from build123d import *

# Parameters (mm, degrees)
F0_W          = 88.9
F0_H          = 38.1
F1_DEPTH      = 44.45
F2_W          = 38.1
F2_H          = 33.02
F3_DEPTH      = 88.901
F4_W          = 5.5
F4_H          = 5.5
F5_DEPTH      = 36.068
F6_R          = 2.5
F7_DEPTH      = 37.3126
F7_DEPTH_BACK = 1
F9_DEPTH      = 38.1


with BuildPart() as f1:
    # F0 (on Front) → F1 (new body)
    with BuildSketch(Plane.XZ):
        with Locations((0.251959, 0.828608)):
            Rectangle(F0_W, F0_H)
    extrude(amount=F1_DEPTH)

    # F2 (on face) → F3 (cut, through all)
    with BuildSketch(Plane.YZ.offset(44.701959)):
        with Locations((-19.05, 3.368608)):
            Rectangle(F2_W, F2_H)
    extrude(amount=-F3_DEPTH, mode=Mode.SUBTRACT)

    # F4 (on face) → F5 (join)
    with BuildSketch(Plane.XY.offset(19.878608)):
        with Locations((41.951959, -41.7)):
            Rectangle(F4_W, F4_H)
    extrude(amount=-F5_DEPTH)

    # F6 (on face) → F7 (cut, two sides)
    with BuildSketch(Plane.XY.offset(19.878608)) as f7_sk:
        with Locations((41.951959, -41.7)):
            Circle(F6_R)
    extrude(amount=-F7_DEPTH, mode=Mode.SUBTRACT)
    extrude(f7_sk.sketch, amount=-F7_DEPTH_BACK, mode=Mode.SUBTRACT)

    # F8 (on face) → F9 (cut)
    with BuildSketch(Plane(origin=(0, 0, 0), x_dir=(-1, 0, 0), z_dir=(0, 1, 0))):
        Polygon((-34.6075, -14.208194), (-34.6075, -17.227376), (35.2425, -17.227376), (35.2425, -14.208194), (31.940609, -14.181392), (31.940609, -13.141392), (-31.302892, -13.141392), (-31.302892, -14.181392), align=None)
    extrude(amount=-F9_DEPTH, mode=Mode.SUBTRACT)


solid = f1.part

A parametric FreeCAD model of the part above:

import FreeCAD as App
import Part
import Sketcher
Q = App.Units.Quantity


def add_polygon(sketch, points):
    """Adds a closed chain of lines whose ends are joined by coincident constraints."""
    first, n = sketch.GeometryCount, len(points)
    for a, b in zip(points, points[1:] + points[:1]):
        sketch.addGeometry(Part.LineSegment(App.Vector(*a, 0), App.Vector(*b, 0)), False)
    for i in range(n):
        sketch.addConstraint(Sketcher.Constraint("Coincident", first + i, 2, first + (i + 1) % n, 1))

doc = App.newDocument("Part")
body = doc.addObject("PartDesign::Body", "Body")

sketch1 = doc.addObject("Sketcher::SketchObject", "Sketch")
body.addObject(sketch1)
sketch1.AttachmentSupport = (doc.XZ_Plane, [""])
sketch1.MapMode = "FlatFace"
add_polygon(sketch1, [(-44.198041, 19.878608), (-44.198041, -18.221392), (44.701959, -18.221392), (44.701959, 19.878608)])
sketch1.addConstraint(Sketcher.Constraint("Vertical", 0))
sketch1.addConstraint(Sketcher.Constraint("Horizontal", 1))
sketch1.addConstraint(Sketcher.Constraint("Vertical", 2))
sketch1.addConstraint(Sketcher.Constraint("Horizontal", 3))
sketch1.addConstraint(Sketcher.Constraint("DistanceX", 1, 1, 1, 2, Q("3.5 in")))
sketch1.addConstraint(Sketcher.Constraint("DistanceY", 0, 2, 0, 1, Q("1.5 in")))
sketch1.addConstraint(Sketcher.Constraint("DistanceX", 0, 2, -1, 1, 44.198041))
sketch1.addConstraint(Sketcher.Constraint("DistanceY", -1, 1, 2, 2, 19.878608))
pad1 = doc.addObject("PartDesign::Pad", "Pad")
body.addObject(pad1)
pad1.Profile = sketch1
pad1.Length = Q("1.75 in")

sketch2 = doc.addObject("Sketcher::SketchObject", "Sketch001")
body.addObject(sketch2)
sketch2.AttachmentSupport = (doc.YZ_Plane, [""])
sketch2.MapMode = "FlatFace"
sketch2.AttachmentOffset = App.Placement(App.Vector(0, 0, 44.701959), App.Rotation())
add_polygon(sketch2, [(-38.1, 19.878608), (-38.1, -13.141392), (0, -13.141392), (0, 19.878608)])
sketch2.addConstraint(Sketcher.Constraint("Vertical", 0))
sketch2.addConstraint(Sketcher.Constraint("Horizontal", 1))
sketch2.addConstraint(Sketcher.Constraint("Vertical", 2))
sketch2.addConstraint(Sketcher.Constraint("Horizontal", 3))
sketch2.addConstraint(Sketcher.Constraint("PointOnObject", 1, 2, -2))
sketch2.addConstraint(Sketcher.Constraint("DistanceX", 1, 1, 1, 2, Q("1.5 in")))
sketch2.addConstraint(Sketcher.Constraint("DistanceY", 0, 2, 0, 1, Q("1.3 in")))
sketch2.addConstraint(Sketcher.Constraint("DistanceY", -1, 1, 2, 2, 19.878608))
pocket1 = doc.addObject("PartDesign::Pocket", "Pocket")
body.addObject(pocket1)
pocket1.Profile = sketch2
pocket1.Type = "ThroughAll"

sketch3 = doc.addObject("Sketcher::SketchObject", "Sketch002")
body.addObject(sketch3)
sketch3.AttachmentSupport = (doc.XY_Plane, [""])
sketch3.MapMode = "FlatFace"
sketch3.AttachmentOffset = App.Placement(App.Vector(0, 0, 19.878608), App.Rotation())
add_polygon(sketch3, [(39.201959, -38.95), (39.201959, -44.45), (44.701959, -44.45), (44.701959, -38.95)])
sketch3.addConstraint(Sketcher.Constraint("Vertical", 0))
sketch3.addConstraint(Sketcher.Constraint("Horizontal", 1))
sketch3.addConstraint(Sketcher.Constraint("Vertical", 2))
sketch3.addConstraint(Sketcher.Constraint("Horizontal", 3))
sketch3.addConstraint(Sketcher.Constraint("Equal", 3, 0))
sketch3.addConstraint(Sketcher.Constraint("DistanceY", 0, 2, -1, 1, Q("1.75 in")))
sketch3.addConstraint(Sketcher.Constraint("DistanceX", 1, 1, 1, 2, 5.5))
sketch3.addConstraint(Sketcher.Constraint("DistanceX", -1, 1, 0, 2, 39.201959))
pad2 = doc.addObject("PartDesign::Pad", "Pad001")
body.addObject(pad2)
pad2.Profile = sketch3
pad2.Length = Q("1.42 in")
pad2.Reversed = True

sketch4 = doc.addObject("Sketcher::SketchObject", "Sketch003")
body.addObject(sketch4)
sketch4.AttachmentSupport = (doc.XY_Plane, [""])
sketch4.MapMode = "FlatFace"
sketch4.AttachmentOffset = App.Placement(App.Vector(0, 0, 19.878608), App.Rotation())
sketch4.addGeometry(Part.Circle(App.Vector(41.951959, -41.7, 0), App.Vector(0, 0, 1), 2.5), False)
sketch4.addConstraint(Sketcher.Constraint("Diameter", 0, 5.0))
sketch4.addConstraint(Sketcher.Constraint("DistanceY", 0, 3, -1, 1, 41.7))
sketch4.addConstraint(Sketcher.Constraint("DistanceX", -1, 1, 0, 3, 41.951959))
pocket2 = doc.addObject("PartDesign::Pocket", "Pocket001")
body.addObject(pocket2)
pocket2.Profile = sketch4
pocket2.Length = Q("1.469 in")
pocket3 = doc.addObject("PartDesign::Pocket", "Pocket002")
body.addObject(pocket3)
pocket3.Profile = sketch4
pocket3.Length = 1

sketch5 = doc.addObject("Sketcher::SketchObject", "Sketch004")
body.addObject(sketch5)
sketch5.AttachmentSupport = (doc.XZ_Plane, [""])
sketch5.MapMode = "FlatFace"
add_polygon(sketch5, [(34.6075, -14.208194), (34.6075, -17.227376), (-35.2425, -17.227376), (-35.2425, -14.208194), (-31.940609, -14.181392), (-31.940609, -13.141392), (31.302892, -13.141392), (31.302892, -14.181392)])
sketch5.addConstraint(Sketcher.Constraint("Vertical", 0))
sketch5.addConstraint(Sketcher.Constraint("Horizontal", 1))
sketch5.addConstraint(Sketcher.Constraint("Vertical", 2))
sketch5.addConstraint(Sketcher.Constraint("Vertical", 4))
sketch5.addConstraint(Sketcher.Constraint("Horizontal", 5))
sketch5.addConstraint(Sketcher.Constraint("Vertical", 6))
sketch5.addConstraint(Sketcher.Constraint("Horizontal", 3, 2, 6, 2))
sketch5.addConstraint(Sketcher.Constraint("Horizontal", 2, 2, 7, 2))
sketch5.addConstraint(Sketcher.Constraint("DistanceX", 1, 2, 1, 1, Q("2.75 in")))
sketch5.addConstraint(Sketcher.Constraint("Distance", 3, Q("0.13 in")))
sketch5.addConstraint(Sketcher.Constraint("DistanceY", 2, 2, 4, 2, Q("0.0420001 in")))
sketch5.addConstraint(Sketcher.Constraint("DistanceX", 5, 1, 5, 2, 63.243501))
sketch5.addConstraint(Sketcher.Constraint("DistanceY", 4, 1, 4, 2, 1.04))
sketch5.addConstraint(Sketcher.Constraint("DistanceX", -1, 1, 0, 2, Q("1.3625 in")))
sketch5.addConstraint(Sketcher.Constraint("DistanceY", 0, 2, 0, 1, 3.019182))
sketch5.addConstraint(Sketcher.Constraint("DistanceY", 0, 2, -1, 1, 17.227376))
pocket4 = doc.addObject("PartDesign::Pocket", "Pocket003")
body.addObject(pocket4)
pocket4.Profile = sketch5
pocket4.Length = Q("1.5 in")
pocket4.Reversed = True

doc.recompute()
